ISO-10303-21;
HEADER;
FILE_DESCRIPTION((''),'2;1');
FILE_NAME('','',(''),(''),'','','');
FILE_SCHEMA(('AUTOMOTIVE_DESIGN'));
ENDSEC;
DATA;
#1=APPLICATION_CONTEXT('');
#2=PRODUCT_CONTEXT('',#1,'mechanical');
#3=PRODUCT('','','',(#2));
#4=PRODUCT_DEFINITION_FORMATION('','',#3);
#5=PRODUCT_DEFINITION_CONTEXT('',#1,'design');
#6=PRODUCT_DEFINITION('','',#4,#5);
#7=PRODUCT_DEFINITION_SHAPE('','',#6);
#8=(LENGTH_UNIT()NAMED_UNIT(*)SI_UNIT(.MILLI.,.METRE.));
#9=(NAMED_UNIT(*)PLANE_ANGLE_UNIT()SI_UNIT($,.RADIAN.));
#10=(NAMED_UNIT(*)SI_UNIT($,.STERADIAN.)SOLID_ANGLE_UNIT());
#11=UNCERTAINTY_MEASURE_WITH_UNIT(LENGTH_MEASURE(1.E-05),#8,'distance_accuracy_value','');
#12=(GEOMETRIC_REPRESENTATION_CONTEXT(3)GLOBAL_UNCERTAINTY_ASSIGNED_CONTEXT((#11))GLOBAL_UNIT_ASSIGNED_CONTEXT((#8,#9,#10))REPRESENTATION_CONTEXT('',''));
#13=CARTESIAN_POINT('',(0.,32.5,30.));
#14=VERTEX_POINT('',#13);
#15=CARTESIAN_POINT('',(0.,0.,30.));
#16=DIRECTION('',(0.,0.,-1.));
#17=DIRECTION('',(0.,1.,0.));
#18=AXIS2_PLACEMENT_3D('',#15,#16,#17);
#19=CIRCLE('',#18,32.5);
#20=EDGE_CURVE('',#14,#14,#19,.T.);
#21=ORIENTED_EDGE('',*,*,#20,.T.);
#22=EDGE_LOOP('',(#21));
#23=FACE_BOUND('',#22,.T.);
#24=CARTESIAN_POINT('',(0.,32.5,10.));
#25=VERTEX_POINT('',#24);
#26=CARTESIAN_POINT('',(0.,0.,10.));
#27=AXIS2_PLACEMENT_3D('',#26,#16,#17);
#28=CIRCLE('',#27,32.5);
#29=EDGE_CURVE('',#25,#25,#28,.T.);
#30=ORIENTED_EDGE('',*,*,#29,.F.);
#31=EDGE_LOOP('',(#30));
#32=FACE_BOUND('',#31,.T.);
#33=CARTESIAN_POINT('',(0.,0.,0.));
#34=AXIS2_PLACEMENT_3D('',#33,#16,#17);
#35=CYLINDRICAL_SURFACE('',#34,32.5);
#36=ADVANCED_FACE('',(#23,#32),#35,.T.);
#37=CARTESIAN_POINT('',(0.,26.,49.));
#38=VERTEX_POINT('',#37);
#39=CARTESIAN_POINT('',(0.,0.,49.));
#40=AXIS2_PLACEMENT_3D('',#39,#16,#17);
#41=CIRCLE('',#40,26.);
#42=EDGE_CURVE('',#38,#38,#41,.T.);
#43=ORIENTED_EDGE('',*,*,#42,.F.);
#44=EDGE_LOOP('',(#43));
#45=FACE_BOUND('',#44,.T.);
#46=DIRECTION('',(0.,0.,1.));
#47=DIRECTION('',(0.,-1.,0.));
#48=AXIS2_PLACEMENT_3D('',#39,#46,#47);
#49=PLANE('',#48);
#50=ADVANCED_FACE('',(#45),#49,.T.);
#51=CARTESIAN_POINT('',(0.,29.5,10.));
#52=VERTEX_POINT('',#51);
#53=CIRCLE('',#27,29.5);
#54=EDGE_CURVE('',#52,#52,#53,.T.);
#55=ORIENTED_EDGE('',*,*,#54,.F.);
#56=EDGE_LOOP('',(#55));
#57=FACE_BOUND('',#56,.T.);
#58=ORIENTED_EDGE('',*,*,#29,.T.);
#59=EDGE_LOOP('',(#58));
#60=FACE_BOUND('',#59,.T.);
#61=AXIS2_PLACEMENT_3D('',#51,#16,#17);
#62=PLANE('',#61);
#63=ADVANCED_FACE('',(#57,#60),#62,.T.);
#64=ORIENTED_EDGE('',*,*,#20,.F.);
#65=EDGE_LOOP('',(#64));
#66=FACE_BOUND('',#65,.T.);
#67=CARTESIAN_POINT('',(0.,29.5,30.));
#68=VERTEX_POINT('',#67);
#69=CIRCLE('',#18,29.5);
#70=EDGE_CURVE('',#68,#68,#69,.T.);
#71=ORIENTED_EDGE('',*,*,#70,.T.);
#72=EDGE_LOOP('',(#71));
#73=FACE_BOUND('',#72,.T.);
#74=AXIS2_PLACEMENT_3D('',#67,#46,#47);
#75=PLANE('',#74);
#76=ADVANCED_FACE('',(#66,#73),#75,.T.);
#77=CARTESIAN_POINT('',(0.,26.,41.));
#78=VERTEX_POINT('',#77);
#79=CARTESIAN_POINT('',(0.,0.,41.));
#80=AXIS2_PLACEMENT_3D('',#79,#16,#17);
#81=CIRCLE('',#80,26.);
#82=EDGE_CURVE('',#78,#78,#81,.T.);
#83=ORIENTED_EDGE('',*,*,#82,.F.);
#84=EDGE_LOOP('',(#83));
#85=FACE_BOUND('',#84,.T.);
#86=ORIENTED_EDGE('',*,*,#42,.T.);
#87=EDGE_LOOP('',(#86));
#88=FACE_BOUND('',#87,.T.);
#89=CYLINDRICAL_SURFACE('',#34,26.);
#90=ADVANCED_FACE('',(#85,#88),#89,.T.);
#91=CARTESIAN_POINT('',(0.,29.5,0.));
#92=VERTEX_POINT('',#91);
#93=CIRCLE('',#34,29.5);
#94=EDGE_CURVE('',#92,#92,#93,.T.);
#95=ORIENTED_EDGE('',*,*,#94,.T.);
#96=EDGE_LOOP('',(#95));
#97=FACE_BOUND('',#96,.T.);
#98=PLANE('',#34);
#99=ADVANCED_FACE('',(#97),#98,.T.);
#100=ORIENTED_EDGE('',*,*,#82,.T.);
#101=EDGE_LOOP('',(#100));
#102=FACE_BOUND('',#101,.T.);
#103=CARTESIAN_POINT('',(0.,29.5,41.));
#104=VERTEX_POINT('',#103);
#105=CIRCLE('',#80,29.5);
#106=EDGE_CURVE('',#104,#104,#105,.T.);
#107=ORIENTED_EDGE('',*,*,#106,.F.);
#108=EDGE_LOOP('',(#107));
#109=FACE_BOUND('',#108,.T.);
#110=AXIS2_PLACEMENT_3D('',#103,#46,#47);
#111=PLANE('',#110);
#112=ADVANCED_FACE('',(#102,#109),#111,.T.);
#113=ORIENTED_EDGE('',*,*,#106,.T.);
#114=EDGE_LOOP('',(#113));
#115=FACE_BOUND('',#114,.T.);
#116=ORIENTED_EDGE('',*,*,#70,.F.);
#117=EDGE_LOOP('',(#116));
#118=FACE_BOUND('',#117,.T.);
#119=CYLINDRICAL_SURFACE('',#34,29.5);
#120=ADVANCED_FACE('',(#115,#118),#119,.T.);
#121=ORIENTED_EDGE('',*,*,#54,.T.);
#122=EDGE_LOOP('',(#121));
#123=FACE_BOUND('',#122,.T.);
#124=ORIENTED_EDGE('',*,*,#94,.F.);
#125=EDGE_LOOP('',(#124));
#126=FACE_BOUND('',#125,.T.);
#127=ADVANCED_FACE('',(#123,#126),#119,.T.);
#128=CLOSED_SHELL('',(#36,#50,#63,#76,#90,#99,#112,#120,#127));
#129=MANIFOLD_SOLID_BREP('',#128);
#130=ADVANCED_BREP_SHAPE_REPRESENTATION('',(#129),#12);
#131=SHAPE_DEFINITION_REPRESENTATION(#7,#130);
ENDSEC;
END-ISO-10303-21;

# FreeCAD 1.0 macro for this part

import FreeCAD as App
import Part
import Sketcher
from FreeCAD import Vector
Q = App.Units.Quantity


def add_polygon(sketch, points):
    """Adds a closed chain of lines whose ends are joined by coincident constraints."""
    first, n = sketch.GeometryCount, len(points)
    for a, b in zip(points, points[1:] + points[:1]):
        sketch.addGeometry(Part.LineSegment(App.Vector(*a, 0), App.Vector(*b, 0)), False)
    for i in range(n):
        sketch.addConstraint(Sketcher.Constraint("Coincident", first + i, 2, first + (i + 1) % n, 1))

doc = App.newDocument("Part")
params = doc.addObject("Spreadsheet::Sheet", "Params")
for row, (alias, value) in enumerate([
    ("sketch1_width", "3 mm"),
    ("sketch1_width2", "26 mm"),
    ("sketch1_height", "10 mm"),
    ("sketch1_height2", "20 mm"),
    ("sketch1_height3", "11 mm"),
    ("revolution_angle", "360 deg"),
], start=1):
    params.set(f"A{row}", alias)
    params.set(f"B{row}", "=" + value)
    params.setAlias(f"B{row}", alias)

body = doc.addObject("PartDesign::Body", "Body")

sketch1 = body.newObject("Sketcher::SketchObject", "Sketch")
sketch1.AttachmentSupport = (doc.getObject("YZ_Plane"), [""])
sketch1.MapMode = "FlatFace"
add_polygon(sketch1, [(29.5, 0), (29.5, 10), (32.5, 10), (32.5, 30), (29.5, 30), (29.5, 41), (26, 41), (26, 49), (0, 49), (0, 0)])
sketch1.addConstraint([
    Sketcher.Constraint("Vertical", 0),
    Sketcher.Constraint("Horizontal", 1),
    Sketcher.Constraint("Vertical", 2),
    Sketcher.Constraint("Horizontal", 3),
    Sketcher.Constraint("Vertical", 4),
    Sketcher.Constraint("Horizontal", 5),
    Sketcher.Constraint("Vertical", 6),
    Sketcher.Constraint("Horizontal", 7),
    Sketcher.Constraint("Vertical", 8),
    Sketcher.Constraint("Horizontal", 9),
    Sketcher.Constraint("Coincident", 8, 2, -1, 1),
    Sketcher.Constraint("Vertical", 0, 2, 3, 2),
    Sketcher.Constraint("DistanceX", 1, 1, 1, 2, Q("3 mm")),
    Sketcher.Constraint("DistanceX", 7, 2, 7, 1, Q("26 mm")),
    Sketcher.Constraint("DistanceY", 0, 1, 0, 2, Q("10 mm")),
    Sketcher.Constraint("DistanceY", 2, 1, 2, 2, Q("20 mm")),
    Sketcher.Constraint("DistanceY", 4, 1, 4, 2, Q("11 mm")),
    Sketcher.Constraint("DistanceY", 6, 1, 6, 2, Q("8 mm")),
    Sketcher.Constraint("DistanceX", 5, 2, 5, 1, Q("3.5 mm")),
])
sketch1.setExpression("Constraints[22]", "Params.sketch1_width")
sketch1.setExpression("Constraints[23]", "Params.sketch1_width2")
sketch1.setExpression("Constraints[24]", "Params.sketch1_height")
sketch1.setExpression("Constraints[25]", "Params.sketch1_height2")
sketch1.setExpression("Constraints[26]", "Params.sketch1_height3")
revolution = body.newObject("PartDesign::Revolution", "Revolution")
revolution.Profile = sketch1
revolution.ReferenceAxis = (sketch1, ["V_Axis"])
revolution.setExpression("Angle", "Params.revolution_angle")

doc.recompute()
